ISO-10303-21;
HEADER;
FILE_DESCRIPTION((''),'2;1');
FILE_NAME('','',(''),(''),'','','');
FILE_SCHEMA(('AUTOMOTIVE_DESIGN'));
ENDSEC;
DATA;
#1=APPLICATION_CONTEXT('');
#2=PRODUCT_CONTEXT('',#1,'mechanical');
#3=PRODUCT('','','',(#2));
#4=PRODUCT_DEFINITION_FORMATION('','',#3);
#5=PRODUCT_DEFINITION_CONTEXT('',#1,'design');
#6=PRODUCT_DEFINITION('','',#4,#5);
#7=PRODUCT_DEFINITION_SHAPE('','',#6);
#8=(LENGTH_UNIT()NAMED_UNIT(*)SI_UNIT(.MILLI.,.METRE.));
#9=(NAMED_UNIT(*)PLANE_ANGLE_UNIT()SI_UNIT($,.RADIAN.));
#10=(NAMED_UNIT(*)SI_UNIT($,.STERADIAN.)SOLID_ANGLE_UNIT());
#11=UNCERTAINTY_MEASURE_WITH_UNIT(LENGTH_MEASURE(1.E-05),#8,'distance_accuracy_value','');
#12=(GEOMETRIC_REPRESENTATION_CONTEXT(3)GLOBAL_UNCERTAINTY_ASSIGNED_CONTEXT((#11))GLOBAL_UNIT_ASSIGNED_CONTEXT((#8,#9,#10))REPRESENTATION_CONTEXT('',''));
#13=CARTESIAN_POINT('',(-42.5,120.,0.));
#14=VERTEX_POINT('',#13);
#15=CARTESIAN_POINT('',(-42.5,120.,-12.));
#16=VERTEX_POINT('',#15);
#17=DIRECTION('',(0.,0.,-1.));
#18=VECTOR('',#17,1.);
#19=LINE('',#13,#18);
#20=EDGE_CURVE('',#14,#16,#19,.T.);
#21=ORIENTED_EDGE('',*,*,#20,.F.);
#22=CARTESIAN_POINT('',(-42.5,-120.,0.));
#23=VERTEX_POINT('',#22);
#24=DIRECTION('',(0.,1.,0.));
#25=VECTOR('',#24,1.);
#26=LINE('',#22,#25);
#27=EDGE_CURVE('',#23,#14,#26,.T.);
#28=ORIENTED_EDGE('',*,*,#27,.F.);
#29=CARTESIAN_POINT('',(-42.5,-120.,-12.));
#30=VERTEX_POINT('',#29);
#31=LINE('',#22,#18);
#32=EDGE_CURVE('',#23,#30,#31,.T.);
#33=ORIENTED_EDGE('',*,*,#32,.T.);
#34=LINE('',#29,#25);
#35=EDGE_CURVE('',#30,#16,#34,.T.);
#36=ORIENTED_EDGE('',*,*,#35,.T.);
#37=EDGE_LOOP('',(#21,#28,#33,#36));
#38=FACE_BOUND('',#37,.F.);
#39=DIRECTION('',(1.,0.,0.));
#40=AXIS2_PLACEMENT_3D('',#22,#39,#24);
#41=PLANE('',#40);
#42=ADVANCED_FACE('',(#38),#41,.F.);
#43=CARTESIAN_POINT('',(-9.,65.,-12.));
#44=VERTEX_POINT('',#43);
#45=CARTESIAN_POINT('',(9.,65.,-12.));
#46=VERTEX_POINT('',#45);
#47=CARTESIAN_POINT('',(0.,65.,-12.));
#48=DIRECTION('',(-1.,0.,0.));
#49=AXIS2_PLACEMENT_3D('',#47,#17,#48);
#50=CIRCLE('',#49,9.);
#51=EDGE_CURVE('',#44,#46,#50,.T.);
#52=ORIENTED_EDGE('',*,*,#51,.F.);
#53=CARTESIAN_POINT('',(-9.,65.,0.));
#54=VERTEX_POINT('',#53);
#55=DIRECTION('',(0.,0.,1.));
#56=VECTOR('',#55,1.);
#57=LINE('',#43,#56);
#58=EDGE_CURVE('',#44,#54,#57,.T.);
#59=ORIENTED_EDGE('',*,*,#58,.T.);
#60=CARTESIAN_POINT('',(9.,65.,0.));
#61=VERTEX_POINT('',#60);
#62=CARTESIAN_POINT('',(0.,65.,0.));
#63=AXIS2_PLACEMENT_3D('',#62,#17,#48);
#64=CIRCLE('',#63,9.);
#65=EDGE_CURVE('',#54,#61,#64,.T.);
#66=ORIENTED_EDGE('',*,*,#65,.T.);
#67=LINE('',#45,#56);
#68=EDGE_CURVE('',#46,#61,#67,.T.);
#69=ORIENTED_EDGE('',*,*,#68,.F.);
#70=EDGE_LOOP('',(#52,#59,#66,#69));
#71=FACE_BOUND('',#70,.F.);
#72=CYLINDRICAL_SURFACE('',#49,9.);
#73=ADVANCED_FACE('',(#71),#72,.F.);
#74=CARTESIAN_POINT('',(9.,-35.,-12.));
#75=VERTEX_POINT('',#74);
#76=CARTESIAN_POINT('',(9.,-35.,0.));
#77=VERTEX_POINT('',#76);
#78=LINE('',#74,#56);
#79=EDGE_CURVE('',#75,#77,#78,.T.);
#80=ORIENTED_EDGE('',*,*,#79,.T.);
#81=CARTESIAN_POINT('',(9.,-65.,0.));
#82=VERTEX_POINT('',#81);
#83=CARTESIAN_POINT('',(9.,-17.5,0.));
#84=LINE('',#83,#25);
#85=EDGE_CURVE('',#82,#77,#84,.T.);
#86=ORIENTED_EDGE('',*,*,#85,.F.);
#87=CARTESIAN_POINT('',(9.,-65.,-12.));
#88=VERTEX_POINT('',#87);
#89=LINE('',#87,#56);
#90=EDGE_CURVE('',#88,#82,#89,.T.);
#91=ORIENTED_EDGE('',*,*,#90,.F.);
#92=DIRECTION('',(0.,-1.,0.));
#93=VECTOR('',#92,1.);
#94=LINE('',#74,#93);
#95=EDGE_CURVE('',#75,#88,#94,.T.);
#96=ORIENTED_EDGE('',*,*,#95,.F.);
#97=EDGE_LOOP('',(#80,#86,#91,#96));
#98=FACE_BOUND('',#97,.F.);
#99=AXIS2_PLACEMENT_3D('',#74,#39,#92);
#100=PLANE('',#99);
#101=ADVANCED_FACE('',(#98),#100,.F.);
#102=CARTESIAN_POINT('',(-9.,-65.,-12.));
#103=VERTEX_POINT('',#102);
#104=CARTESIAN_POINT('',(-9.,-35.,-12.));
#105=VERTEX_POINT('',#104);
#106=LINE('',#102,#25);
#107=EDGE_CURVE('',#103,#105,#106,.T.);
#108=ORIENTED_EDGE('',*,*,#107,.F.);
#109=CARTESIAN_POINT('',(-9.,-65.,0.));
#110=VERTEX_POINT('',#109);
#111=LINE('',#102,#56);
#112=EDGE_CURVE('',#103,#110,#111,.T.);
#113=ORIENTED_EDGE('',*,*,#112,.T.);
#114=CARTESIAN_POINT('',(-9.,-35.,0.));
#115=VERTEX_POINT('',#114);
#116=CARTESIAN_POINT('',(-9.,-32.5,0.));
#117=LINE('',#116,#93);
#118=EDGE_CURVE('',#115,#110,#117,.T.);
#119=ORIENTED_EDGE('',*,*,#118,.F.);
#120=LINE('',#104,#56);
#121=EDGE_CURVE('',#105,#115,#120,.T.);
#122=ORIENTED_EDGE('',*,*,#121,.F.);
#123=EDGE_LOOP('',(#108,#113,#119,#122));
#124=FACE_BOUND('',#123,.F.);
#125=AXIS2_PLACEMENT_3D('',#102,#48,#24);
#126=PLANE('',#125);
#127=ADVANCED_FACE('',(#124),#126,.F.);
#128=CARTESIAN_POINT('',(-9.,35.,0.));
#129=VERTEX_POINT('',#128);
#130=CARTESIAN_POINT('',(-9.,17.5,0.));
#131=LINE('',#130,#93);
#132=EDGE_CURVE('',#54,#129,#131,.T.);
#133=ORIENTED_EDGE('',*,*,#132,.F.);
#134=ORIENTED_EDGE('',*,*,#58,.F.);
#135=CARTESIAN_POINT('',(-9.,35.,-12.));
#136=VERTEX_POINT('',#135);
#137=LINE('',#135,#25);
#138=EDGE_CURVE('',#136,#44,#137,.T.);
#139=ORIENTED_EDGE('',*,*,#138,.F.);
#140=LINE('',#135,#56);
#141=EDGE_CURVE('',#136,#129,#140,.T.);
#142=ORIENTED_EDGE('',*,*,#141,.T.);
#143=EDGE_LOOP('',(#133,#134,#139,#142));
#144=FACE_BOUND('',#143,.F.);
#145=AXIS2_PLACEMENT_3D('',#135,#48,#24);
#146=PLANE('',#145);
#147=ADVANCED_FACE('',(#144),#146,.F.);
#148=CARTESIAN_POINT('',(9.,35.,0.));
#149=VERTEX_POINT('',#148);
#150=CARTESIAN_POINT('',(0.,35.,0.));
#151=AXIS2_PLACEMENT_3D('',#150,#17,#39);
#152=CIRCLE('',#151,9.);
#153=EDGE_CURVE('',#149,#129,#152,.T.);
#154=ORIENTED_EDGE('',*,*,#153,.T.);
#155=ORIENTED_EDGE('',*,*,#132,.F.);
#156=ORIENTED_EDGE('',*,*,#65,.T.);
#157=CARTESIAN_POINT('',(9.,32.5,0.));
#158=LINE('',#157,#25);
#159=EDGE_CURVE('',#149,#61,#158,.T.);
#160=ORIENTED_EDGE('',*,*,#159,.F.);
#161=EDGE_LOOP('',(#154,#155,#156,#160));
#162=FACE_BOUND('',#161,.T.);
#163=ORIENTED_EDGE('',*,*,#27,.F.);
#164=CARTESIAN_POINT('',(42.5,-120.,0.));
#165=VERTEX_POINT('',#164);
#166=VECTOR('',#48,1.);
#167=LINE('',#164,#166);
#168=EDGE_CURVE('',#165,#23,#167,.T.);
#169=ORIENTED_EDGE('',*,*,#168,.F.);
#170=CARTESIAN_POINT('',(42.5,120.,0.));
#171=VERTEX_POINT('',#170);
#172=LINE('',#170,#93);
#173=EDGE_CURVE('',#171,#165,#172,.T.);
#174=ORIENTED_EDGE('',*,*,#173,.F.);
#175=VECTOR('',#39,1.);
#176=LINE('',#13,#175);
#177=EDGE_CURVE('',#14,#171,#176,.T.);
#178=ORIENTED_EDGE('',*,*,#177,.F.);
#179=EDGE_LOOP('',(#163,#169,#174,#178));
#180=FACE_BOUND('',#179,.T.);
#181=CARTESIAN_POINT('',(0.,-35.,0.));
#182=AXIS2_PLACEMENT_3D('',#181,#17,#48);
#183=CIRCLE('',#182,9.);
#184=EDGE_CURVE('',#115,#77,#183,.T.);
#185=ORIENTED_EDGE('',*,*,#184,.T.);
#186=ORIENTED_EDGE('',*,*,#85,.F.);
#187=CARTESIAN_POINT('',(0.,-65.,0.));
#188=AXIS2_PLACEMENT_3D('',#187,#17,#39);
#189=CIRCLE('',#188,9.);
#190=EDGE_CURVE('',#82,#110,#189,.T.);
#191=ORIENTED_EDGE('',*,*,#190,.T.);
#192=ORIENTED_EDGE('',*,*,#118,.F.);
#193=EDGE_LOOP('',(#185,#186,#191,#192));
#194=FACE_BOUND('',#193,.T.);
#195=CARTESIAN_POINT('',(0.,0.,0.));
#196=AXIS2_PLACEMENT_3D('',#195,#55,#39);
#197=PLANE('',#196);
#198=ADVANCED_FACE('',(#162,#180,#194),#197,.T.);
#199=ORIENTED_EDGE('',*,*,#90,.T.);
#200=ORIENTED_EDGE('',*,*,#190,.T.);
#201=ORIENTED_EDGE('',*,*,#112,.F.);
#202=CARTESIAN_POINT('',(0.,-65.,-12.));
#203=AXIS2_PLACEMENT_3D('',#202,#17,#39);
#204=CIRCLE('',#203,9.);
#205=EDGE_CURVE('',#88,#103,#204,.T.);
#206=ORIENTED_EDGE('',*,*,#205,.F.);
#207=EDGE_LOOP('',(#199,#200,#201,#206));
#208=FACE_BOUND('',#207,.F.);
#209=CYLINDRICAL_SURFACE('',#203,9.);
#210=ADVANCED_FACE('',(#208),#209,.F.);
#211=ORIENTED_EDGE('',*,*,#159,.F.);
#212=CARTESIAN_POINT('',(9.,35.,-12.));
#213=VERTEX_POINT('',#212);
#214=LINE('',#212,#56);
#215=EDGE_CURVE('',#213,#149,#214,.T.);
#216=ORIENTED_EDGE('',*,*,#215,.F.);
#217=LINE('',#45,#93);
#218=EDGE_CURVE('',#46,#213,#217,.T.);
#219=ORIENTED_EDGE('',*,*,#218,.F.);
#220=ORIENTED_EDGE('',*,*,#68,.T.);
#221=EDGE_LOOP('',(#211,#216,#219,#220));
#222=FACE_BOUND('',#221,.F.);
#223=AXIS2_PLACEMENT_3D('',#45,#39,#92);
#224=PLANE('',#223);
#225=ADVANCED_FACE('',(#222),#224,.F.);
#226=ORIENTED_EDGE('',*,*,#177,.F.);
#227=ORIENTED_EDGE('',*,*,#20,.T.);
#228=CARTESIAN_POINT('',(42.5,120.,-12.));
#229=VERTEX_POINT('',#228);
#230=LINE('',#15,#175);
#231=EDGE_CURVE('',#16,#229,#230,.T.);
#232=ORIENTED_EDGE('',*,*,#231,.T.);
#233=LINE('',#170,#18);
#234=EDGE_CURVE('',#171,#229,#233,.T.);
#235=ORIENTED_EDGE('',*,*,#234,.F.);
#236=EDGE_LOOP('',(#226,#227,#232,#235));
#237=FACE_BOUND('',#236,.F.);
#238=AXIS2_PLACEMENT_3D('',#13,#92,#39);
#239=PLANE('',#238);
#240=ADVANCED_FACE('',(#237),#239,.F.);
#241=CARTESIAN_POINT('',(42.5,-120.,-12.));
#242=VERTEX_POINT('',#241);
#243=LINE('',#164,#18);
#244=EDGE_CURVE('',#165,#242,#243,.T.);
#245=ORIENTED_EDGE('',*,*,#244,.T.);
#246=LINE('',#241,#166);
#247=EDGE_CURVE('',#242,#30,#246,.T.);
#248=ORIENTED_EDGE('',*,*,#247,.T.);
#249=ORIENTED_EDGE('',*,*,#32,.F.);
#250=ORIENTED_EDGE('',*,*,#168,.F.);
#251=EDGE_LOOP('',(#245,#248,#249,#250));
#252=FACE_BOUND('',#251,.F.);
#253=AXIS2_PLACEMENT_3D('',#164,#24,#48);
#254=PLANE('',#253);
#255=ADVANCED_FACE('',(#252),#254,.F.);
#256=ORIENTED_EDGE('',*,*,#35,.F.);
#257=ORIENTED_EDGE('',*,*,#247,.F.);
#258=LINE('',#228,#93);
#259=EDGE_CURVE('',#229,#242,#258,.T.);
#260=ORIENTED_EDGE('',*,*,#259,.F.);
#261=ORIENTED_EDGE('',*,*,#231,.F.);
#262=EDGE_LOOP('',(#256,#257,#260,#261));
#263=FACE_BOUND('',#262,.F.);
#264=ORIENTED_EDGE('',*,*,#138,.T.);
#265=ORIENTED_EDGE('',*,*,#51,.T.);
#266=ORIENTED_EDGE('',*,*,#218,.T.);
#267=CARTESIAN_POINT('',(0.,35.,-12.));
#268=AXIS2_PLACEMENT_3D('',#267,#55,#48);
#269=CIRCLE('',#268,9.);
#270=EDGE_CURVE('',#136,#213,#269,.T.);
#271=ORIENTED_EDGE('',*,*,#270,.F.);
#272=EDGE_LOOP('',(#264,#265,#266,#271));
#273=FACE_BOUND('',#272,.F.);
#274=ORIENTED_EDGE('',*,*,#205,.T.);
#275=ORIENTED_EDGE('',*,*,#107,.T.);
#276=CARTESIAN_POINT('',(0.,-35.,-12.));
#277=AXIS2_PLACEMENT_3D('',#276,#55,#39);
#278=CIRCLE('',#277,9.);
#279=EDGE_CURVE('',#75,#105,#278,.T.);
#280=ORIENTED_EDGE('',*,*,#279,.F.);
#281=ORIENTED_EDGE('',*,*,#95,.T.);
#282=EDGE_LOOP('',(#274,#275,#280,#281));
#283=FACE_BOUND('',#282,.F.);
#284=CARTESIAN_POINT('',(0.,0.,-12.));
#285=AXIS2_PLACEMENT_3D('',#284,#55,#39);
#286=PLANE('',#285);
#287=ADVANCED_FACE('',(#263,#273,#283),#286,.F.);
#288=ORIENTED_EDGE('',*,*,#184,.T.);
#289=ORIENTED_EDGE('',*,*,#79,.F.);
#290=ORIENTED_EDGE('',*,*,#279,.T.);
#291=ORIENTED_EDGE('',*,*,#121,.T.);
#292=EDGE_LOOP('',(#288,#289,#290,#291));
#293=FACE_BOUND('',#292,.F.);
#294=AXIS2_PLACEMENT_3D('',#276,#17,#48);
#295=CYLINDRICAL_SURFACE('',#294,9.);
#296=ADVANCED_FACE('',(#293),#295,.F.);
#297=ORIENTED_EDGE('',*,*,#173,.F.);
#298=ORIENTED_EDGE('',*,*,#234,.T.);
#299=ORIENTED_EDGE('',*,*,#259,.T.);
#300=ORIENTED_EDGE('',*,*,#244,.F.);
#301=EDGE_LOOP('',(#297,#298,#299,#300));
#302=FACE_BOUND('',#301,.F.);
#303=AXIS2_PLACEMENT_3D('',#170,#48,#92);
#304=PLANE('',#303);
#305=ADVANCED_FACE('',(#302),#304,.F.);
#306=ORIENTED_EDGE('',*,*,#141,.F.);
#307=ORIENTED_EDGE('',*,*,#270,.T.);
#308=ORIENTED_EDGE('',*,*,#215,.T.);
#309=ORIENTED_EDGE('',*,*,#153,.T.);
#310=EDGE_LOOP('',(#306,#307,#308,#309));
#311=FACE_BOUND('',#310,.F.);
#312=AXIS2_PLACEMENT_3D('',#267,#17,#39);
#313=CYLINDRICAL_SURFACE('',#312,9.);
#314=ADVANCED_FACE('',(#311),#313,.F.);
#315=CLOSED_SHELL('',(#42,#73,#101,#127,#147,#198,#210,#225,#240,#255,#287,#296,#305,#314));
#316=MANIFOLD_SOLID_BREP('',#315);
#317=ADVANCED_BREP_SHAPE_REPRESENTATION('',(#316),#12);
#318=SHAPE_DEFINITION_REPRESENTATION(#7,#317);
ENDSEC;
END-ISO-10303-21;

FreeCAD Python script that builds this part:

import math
import FreeCAD as App
import Part
import Sketcher

V = App.Vector
Q = App.Units.Quantity


def add_polygon(sketch, points):
    """Adds a closed chain of lines whose ends are joined by coincident constraints."""
    first, n = sketch.GeometryCount, len(points)
    for a, b in zip(points, points[1:] + points[:1]):
        sketch.addGeometry(Part.LineSegment(App.Vector(*a, 0), App.Vector(*b, 0)), False)
    for i in range(n):
        sketch.addConstraint(Sketcher.Constraint("Coincident", first + i, 2, first + (i + 1) % n, 1))

doc = App.newDocument("Part")
body = doc.addObject("PartDesign::Body", "Body")

# Sketch on XY plane
sketch1 = body.newObject("Sketcher::SketchObject", "Sketch")
sketch1.AttachmentSupport = (doc.getObject("XY_Plane"), [""])
sketch1.MapMode = "FlatFace"
add_polygon(sketch1, [(-42, -120), (42, -120), (42, 120), (-42, 120)])  # lines 0-3
sketch1.addConstraint([
    Sketcher.Constraint("Horizontal", 0),
    Sketcher.Constraint("Vertical", 1),
    Sketcher.Constraint("Horizontal", 2),
    Sketcher.Constraint("Vertical", 3),
    Sketcher.Constraint("Symmetric", 0, 2, 2, 2, -1, 1),
    Sketcher.Constraint("DistanceX", 0, 1, 0, 2, Q("85 mm")),
    Sketcher.Constraint("DistanceY", 1, 1, 1, 2, Q("240 mm")),
])
pad1 = body.newObject("PartDesign::Pad", "Pad")
pad1.Profile = sketch1
pad1.Length = 12
pad1.Reversed = True

# Sketch on XY plane
sketch2 = body.newObject("Sketcher::SketchObject", "Sketch001")
sketch2.AttachmentSupport = (doc.getObject("XY_Plane"), [""])
sketch2.MapMode = "FlatFace"
sketch2.AttachmentOffset = App.Placement(V(0, 0, -12), App.Rotation())
sketch2.addGeometry([
    Part.ArcOfCircle(Part.Circle(V(0, -35, 0), V(0, 0, 1), 9), math.radians(0), math.radians(180)),  # 0
    Part.LineSegment(V(9, -35, 0), V(9, -65, 0)),  # 1
    Part.ArcOfCircle(Part.Circle(V(0, -65, 0), V(0, 0, 1), 9), math.radians(180), math.radians(360)),  # 2
    Part.LineSegment(V(-9, -65, 0), V(-9, -35, 0)),  # 3
    Part.ArcOfCircle(Part.Circle(V(0, 35, 0), V(0, 0, 1), 9), math.radians(180), math.radians(360)),  # 4
    Part.LineSegment(V(-9, 35, 0), V(-9, 65, 0)),  # 5
    Part.ArcOfCircle(Part.Circle(V(0, 65, 0), V(0, 0, 1), 9), math.radians(0), math.radians(180)),  # 6
    Part.LineSegment(V(9, 65, 0), V(9, 35, 0)),  # 7
], False)
sketch2.addConstraint([
    Sketcher.Constraint("Tangent", 0, 1, 1, 1),
    Sketcher.Constraint("Tangent", 1, 2, 2, 2),
    Sketcher.Constraint("Tangent", 2, 1, 3, 1),
    Sketcher.Constraint("Tangent", 3, 2, 0, 2),
    Sketcher.Constraint("Tangent", 4, 1, 5, 1),
    Sketcher.Constraint("Tangent", 5, 2, 6, 2),
    Sketcher.Constraint("Tangent", 6, 1, 7, 1),
    Sketcher.Constraint("Tangent", 7, 2, 4, 2),
    Sketcher.Constraint("Vertical", 1),
    Sketcher.Constraint("Vertical", 3),
    Sketcher.Constraint("Vertical", 5),
    Sketcher.Constraint("Vertical", 7),
    Sketcher.Constraint("Equal", 2, 4),
    Sketcher.Constraint("Symmetric", 0, 3, 4, 3, -1, 1),
    Sketcher.Constraint("Symmetric", 2, 3, 6, 3, -1),
    Sketcher.Constraint("Radius", 0, Q("9 mm")),
    Sketcher.Constraint("DistanceY", 1, 2, 1, 1, Q("30 mm")),
    Sketcher.Constraint("DistanceY", 2, 3, 4, 3, Q("100 mm")),
])
pocket1 = body.newObject("PartDesign::Pocket", "Pocket")
pocket1.Profile = sketch2
pocket1.Type = "ThroughAll"
pocket1.Reversed = True

doc.recompute()
